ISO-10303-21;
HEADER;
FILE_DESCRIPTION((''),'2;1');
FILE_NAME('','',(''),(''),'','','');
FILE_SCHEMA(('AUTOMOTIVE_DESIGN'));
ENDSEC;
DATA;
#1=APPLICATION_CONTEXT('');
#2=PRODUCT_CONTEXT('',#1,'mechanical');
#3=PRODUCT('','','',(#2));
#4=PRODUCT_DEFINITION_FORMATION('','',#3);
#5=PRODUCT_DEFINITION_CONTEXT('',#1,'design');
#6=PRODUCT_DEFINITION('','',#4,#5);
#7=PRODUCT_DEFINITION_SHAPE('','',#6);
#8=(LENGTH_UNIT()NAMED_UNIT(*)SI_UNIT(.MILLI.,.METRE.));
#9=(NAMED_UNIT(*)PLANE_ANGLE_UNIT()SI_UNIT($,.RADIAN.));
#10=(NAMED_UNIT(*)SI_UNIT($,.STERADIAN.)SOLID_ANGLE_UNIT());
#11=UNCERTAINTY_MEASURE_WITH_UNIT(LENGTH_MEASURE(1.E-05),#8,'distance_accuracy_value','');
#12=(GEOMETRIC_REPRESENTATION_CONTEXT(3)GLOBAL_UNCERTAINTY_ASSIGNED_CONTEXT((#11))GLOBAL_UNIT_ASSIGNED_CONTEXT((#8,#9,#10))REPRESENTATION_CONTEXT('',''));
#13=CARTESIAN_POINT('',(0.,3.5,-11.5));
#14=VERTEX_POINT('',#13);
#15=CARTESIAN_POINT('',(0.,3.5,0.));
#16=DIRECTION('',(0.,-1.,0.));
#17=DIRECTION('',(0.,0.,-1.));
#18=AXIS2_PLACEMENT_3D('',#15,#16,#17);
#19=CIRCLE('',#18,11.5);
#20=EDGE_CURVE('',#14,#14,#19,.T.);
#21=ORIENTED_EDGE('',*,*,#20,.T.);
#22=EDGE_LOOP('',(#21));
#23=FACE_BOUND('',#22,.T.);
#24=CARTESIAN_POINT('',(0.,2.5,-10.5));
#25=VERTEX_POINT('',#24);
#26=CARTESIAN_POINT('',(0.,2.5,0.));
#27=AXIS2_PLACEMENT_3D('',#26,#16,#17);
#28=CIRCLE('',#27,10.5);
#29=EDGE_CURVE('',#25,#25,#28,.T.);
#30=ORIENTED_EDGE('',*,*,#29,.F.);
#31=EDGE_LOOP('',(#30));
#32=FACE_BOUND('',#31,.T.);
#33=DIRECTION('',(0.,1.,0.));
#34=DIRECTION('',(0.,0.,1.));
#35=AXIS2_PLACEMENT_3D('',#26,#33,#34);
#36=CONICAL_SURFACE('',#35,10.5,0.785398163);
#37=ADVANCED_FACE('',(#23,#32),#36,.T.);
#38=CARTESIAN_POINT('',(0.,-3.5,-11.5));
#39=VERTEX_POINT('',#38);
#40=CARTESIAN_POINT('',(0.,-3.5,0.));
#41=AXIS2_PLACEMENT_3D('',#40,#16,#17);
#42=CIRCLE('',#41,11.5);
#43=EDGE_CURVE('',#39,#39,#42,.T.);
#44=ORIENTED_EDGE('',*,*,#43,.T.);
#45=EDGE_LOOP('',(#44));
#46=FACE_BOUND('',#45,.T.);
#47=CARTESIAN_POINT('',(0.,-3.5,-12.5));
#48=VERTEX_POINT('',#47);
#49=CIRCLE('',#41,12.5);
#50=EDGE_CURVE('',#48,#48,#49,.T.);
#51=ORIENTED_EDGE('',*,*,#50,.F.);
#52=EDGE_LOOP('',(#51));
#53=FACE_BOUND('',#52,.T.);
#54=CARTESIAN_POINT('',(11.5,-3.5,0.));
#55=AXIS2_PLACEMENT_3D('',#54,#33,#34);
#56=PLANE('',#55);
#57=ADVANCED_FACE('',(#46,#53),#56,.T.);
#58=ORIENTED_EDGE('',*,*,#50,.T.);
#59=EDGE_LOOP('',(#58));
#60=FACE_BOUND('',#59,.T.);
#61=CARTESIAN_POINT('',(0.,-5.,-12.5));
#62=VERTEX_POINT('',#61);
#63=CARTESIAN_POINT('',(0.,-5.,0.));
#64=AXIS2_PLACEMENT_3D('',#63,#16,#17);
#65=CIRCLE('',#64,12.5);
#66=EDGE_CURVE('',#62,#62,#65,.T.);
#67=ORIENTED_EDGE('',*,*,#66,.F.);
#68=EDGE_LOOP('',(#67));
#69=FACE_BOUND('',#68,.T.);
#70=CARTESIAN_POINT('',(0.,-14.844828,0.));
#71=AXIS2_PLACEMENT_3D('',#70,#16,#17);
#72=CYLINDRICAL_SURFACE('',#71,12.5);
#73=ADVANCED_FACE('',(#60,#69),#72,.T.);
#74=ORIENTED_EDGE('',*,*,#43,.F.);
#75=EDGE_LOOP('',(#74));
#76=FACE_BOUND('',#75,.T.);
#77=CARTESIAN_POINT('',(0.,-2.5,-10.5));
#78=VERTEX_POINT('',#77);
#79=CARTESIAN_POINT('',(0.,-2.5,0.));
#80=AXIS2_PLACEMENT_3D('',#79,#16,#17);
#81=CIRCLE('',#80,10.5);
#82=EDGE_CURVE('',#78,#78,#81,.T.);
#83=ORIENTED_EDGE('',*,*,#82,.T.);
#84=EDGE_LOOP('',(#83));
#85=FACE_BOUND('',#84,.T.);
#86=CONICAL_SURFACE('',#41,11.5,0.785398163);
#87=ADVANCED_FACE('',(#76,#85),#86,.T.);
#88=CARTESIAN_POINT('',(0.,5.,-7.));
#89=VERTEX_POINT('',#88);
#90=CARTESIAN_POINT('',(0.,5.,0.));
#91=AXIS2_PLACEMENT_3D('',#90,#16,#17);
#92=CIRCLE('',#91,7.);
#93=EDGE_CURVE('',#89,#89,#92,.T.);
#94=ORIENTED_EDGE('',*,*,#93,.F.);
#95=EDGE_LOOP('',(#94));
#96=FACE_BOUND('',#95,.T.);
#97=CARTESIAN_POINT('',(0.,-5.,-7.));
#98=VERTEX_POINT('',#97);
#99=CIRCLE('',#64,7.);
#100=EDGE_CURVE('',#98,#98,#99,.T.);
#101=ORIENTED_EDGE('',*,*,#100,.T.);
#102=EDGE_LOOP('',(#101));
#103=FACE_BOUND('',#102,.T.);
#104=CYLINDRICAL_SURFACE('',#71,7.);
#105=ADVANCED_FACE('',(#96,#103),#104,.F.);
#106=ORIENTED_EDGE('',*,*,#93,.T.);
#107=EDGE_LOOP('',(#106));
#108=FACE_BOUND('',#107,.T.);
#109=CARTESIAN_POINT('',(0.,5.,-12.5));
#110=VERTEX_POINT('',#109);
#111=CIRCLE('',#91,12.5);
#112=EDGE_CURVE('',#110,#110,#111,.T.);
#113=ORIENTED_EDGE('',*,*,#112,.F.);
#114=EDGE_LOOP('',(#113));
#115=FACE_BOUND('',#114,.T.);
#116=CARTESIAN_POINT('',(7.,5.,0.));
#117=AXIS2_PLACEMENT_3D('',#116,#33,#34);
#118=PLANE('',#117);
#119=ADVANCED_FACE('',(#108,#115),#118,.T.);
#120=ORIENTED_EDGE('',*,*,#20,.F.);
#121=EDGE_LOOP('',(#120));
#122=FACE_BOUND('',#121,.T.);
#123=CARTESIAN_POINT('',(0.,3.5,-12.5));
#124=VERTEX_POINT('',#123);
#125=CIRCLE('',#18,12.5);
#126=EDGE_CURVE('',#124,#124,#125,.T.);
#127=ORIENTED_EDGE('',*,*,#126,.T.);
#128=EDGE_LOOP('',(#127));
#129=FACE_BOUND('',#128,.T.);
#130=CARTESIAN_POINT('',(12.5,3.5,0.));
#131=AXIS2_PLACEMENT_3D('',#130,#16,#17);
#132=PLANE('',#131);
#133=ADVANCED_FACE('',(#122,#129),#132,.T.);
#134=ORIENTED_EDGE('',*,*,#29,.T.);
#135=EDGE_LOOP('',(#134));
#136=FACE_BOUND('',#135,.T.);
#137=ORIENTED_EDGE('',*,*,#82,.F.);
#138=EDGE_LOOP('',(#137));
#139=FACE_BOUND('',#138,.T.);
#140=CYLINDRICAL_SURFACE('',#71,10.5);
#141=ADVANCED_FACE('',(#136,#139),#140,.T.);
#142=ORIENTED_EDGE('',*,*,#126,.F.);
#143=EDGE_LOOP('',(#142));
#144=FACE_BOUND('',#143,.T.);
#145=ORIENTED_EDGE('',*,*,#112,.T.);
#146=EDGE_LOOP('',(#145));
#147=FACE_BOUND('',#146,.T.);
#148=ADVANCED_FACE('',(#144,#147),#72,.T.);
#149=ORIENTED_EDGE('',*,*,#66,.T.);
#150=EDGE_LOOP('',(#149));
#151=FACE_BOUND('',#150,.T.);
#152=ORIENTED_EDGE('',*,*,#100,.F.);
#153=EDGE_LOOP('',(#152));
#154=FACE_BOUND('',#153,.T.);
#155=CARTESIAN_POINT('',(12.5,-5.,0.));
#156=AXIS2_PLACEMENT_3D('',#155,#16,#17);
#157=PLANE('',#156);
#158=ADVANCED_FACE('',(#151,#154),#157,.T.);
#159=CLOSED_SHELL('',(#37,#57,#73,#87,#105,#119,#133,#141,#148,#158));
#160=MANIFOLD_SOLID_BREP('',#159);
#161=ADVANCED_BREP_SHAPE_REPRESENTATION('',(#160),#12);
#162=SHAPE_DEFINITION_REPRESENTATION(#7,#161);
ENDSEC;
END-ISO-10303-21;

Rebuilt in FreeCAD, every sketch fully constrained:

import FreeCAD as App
import Part
import Sketcher


def add_polygon(sketch, points):
    """Adds a closed chain of lines whose ends are joined by coincident constraints."""
    first, n = sketch.GeometryCount, len(points)
    for a, b in zip(points, points[1:] + points[:1]):
        sketch.addGeometry(Part.LineSegment(App.Vector(*a, 0), App.Vector(*b, 0)), False)
    for i in range(n):
        sketch.addConstraint(Sketcher.Constraint("Coincident", first + i, 2, first + (i + 1) % n, 1))

doc = App.newDocument("Part")
body = doc.addObject("PartDesign::Body", "Body")

# Sketch on XY plane
sketch1 = body.newObject("Sketcher::SketchObject", "Sketch")
sketch1.AttachmentSupport = (doc.getObject("XY_Plane"), [""])
sketch1.MapMode = "FlatFace"
add_polygon(sketch1, [(7, 5), (7, -5), (12.5, -5), (12.5, -3.5), (11.5, -3.5), (10.5, -2.5), (10.5, 2.5), (11.5, 3.5), (12.5, 3.5), (12.5, 5)])  # lines 0-9
sketch1.addConstraint([
    Sketcher.Constraint("Vertical", 0),
    Sketcher.Constraint("Horizontal", 1),
    Sketcher.Constraint("Vertical", 2),
    Sketcher.Constraint("Horizontal", 3),
    Sketcher.Constraint("Vertical", 5),
    Sketcher.Constraint("Horizontal", 7),
    Sketcher.Constraint("Vertical", 8),
    Sketcher.Constraint("Horizontal", 9),
    Sketcher.Constraint("Symmetric", 3, 2, 6, 2, -1),
    Sketcher.Constraint("Symmetric", 1, 2, 8, 2, -1),
    Sketcher.Constraint("Perpendicular", 4, 6),
    Sketcher.Constraint("Equal", 4, 6),
    Sketcher.Constraint("DistanceX", 3, 2, 3, 1, 1.0),
    Sketcher.Constraint("DistanceY", 0, 2, 0, 1, 10.0),
    Sketcher.Constraint("DistanceY", 5, 1, 5, 2, 5.0),
    Sketcher.Constraint("DistanceX", 1, 1, 1, 2, 5.5),
    Sketcher.Constraint("DistanceY", 2, 1, 2, 2, 1.5),
    Sketcher.Constraint("DistanceX", -1, 1, 0, 2, 7.0),
])
revolution = body.newObject("PartDesign::Revolution", "Revolution")
revolution.Profile = sketch1
revolution.ReferenceAxis = (sketch1, ["V_Axis"])
revolution.Angle = 360

doc.recompute()
